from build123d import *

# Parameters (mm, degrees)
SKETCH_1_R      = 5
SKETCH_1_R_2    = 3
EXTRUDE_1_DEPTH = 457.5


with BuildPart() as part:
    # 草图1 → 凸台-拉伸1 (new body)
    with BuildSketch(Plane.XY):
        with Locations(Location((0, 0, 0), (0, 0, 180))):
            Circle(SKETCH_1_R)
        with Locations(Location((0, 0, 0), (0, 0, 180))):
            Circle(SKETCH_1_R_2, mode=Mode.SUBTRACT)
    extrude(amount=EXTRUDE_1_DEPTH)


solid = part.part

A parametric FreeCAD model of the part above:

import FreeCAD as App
import Part
import Sketcher
from FreeCAD import Vector

doc = App.newDocument("Part")
params = doc.addObject("Spreadsheet::Sheet", "Params")
for row, (alias, value) in enumerate([
    ("sketch1_diameter", "10 mm"),
    ("sketch1_diameter2", "6 mm"),
    ("pad1_length", "457.5 mm"),
], start=1):
    params.set(f"A{row}", alias)
    params.set(f"B{row}", "=" + value)
    params.setAlias(f"B{row}", alias)

body = doc.addObject("PartDesign::Body", "Body")

sketch1 = body.newObject("Sketcher::SketchObject", "Sketch")
sketch1.AttachmentSupport = (doc.getObject("XY_Plane"), [""])
sketch1.MapMode = "FlatFace"
sketch1.addGeometry([
    Part.Circle(Vector(0, 0, 0), Vector(0, 0, 1), 5),
    Part.Circle(Vector(0, 0, 0), Vector(0, 0, 1), 3),
], False)
sketch1.addConstraint([
    Sketcher.Constraint("Coincident", 0, 3, -1, 1),
    Sketcher.Constraint("Coincident", 1, 3, -1, 1),
    Sketcher.Constraint("Diameter", 0, 10.0),
    Sketcher.Constraint("Diameter", 1, 6.0),
])
sketch1.setExpression("Constraints[2]", "Params.sketch1_diameter")
sketch1.setExpression("Constraints[3]", "Params.sketch1_diameter2")
pad1 = body.newObject("PartDesign::Pad", "Pad")
pad1.Profile = sketch1
pad1.setExpression("Length", "Params.pad1_length")

doc.recompute()
